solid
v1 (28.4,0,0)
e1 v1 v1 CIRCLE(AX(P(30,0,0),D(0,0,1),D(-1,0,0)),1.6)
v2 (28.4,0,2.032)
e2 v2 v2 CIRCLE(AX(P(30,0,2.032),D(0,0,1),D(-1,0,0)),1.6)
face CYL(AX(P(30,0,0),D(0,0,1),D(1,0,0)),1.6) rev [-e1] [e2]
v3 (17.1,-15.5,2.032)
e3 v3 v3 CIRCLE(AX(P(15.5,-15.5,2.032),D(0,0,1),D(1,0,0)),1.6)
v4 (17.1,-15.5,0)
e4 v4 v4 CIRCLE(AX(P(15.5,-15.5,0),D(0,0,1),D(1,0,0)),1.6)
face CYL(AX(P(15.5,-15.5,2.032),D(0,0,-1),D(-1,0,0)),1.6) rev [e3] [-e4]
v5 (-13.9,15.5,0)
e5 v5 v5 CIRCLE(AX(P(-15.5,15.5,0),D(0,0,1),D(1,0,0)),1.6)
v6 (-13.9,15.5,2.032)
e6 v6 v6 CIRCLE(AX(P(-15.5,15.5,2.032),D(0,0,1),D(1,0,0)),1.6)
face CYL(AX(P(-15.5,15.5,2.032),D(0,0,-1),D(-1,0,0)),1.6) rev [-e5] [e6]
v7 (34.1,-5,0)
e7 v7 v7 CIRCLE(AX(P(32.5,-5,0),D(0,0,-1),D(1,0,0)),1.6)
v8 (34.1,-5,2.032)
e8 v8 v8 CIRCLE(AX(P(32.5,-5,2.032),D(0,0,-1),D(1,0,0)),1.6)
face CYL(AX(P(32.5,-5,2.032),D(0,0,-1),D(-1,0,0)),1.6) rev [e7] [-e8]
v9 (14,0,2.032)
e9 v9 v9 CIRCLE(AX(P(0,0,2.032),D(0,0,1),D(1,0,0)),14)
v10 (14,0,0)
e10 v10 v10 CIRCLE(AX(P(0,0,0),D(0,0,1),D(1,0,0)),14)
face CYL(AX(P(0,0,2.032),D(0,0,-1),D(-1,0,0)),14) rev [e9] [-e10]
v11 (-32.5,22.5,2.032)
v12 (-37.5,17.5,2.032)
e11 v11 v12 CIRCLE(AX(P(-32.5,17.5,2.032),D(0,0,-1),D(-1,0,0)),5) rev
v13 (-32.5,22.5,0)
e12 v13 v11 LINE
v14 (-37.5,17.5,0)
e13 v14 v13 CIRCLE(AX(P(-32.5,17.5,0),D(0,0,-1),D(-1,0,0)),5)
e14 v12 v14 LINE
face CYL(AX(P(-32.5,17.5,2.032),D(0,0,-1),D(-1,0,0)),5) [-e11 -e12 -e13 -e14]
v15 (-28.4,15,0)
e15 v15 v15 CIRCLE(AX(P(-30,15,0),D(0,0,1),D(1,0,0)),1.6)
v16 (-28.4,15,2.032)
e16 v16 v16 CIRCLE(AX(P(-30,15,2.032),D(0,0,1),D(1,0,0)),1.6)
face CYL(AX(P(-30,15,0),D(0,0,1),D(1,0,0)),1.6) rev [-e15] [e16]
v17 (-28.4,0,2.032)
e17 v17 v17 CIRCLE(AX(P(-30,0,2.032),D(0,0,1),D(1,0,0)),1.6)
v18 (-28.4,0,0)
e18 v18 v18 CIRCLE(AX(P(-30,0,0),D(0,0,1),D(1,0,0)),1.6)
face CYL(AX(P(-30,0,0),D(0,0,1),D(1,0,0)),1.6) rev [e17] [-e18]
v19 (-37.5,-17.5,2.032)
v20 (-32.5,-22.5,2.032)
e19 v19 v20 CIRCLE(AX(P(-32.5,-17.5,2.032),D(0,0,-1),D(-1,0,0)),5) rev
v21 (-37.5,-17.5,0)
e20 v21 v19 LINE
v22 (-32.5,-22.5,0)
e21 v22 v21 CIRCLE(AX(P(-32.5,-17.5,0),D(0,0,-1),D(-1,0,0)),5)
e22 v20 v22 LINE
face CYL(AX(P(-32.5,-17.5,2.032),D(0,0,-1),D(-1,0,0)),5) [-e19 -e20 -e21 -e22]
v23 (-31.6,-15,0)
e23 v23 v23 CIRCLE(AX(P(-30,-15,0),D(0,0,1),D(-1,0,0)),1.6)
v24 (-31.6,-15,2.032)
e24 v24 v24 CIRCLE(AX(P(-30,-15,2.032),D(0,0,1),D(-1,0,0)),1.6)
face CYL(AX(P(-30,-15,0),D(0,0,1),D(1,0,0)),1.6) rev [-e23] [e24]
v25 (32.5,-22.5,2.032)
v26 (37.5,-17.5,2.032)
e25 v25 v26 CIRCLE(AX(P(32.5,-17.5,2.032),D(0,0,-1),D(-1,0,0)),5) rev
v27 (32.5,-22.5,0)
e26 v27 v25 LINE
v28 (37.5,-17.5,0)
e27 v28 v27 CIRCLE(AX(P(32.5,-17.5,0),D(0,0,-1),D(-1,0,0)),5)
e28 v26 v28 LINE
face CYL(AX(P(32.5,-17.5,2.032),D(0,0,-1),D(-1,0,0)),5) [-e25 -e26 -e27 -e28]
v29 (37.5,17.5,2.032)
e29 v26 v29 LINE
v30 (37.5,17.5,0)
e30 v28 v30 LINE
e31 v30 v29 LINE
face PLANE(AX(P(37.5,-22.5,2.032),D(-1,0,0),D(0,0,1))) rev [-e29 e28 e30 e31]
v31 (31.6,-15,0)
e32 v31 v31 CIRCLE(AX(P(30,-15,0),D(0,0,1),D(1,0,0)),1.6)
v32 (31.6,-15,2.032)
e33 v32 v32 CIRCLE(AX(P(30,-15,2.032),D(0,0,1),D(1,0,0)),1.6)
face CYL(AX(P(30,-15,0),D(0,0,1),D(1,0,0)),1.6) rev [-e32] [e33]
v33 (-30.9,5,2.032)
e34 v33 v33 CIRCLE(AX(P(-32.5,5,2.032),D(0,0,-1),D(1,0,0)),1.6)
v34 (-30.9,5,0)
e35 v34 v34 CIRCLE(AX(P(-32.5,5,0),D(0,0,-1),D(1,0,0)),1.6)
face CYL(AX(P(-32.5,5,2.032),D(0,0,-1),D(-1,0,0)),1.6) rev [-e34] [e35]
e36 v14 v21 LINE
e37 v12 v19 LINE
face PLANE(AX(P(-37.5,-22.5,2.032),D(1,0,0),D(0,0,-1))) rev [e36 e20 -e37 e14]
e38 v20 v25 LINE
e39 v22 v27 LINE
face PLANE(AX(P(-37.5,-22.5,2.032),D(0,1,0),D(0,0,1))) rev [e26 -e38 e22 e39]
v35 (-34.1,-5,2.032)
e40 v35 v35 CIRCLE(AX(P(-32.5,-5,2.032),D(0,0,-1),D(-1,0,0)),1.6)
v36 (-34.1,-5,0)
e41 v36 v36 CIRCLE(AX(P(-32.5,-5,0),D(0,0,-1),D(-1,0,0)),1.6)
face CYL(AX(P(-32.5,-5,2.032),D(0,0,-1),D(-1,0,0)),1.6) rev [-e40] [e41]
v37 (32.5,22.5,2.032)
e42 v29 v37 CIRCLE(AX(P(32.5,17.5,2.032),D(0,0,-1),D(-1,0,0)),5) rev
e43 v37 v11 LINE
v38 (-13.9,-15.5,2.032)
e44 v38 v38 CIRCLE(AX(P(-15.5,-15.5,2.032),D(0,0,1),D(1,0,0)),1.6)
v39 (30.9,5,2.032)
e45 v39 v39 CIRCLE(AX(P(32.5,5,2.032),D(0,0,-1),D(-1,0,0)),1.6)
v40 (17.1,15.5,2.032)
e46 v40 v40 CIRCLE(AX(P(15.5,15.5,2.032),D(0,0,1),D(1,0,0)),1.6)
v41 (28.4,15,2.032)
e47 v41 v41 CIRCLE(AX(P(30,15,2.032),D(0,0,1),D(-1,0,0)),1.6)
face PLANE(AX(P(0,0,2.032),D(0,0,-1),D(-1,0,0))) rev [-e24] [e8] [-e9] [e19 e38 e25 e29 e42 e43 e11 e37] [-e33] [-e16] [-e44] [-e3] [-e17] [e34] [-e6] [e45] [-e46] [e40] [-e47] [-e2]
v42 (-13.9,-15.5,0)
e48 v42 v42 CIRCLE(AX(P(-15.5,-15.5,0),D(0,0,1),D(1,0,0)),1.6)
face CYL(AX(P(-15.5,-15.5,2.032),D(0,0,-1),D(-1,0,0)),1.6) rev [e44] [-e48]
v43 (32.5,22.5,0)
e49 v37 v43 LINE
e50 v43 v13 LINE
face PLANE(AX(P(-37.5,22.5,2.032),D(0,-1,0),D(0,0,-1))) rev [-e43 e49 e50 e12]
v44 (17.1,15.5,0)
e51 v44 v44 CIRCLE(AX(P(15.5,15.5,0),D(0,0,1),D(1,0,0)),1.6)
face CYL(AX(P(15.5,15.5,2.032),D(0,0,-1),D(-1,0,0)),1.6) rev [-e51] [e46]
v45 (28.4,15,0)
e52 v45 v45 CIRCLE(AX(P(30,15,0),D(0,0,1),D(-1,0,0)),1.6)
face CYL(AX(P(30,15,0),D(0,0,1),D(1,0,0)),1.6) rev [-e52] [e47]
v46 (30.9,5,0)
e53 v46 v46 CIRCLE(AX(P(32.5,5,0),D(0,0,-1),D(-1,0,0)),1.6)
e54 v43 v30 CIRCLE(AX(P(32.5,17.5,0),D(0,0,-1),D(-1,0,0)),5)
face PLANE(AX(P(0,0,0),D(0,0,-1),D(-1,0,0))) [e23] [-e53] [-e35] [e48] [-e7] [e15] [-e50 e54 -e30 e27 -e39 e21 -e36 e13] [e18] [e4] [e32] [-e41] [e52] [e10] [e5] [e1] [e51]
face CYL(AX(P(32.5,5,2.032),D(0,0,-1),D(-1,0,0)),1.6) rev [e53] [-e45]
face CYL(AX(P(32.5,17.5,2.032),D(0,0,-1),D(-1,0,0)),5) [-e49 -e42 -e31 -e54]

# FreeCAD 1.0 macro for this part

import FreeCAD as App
import Part
import Sketcher
from FreeCAD import Vector


def edges_at(feature, points):
    """Names of the edges that pass closest to the given points."""
    edges = feature.Shape.Edges
    near = lambda p: min(range(len(edges)), key=lambda i: edges[i].distToShape(Part.Vertex(*p))[0])
    return sorted({f"Edge{near(p) + 1}" for p in points})

doc = App.newDocument("Part")
body = doc.addObject("PartDesign::Body", "Body")

sketch1 = body.newObject("Sketcher::SketchObject", "Sketch")
sketch1.AttachmentSupport = (doc.getObject("XY_Plane"), [""])
sketch1.MapMode = "FlatFace"
sketch1.addGeometry(Part.LineSegment(Vector(-37.5, 22.5, 0), Vector(-37.5, -22.5, 0)), False)
sketch1.addGeometry(Part.LineSegment(Vector(-37.5, -22.5, 0), Vector(37.5, -22.5, 0)), False)
sketch1.addGeometry(Part.LineSegment(Vector(37.5, -22.5, 0), Vector(37.5, 22.5, 0)), False)
sketch1.addGeometry(Part.LineSegment(Vector(37.5, 22.5, 0), Vector(-37.5, 22.5, 0)), False)
sketch1.addGeometry(Part.Circle(Vector(-15.5, -15.5, 0), Vector(0, 0, 1), 1.6), False)
sketch1.addGeometry(Part.Circle(Vector(15.5, -15.5, 0), Vector(0, 0, 1), 1.6), False)
sketch1.addGeometry(Part.Circle(Vector(-15.5, 15.5, 0), Vector(0, 0, 1), 1.6), False)
sketch1.addGeometry(Part.Circle(Vector(0, 0, 0), Vector(0, 0, 1), 14), False)
sketch1.addGeometry(Part.Circle(Vector(15.5, 15.5, 0), Vector(0, 0, 1), 1.6), False)
sketch1.addConstraint(Sketcher.Constraint("Coincident", 0, 2, 1, 1))
sketch1.addConstraint(Sketcher.Constraint("Coincident", 1, 2, 2, 1))
sketch1.addConstraint(Sketcher.Constraint("Coincident", 2, 2, 3, 1))
sketch1.addConstraint(Sketcher.Constraint("Coincident", 3, 2, 0, 1))
sketch1.addConstraint(Sketcher.Constraint("Vertical", 0))
sketch1.addConstraint(Sketcher.Constraint("Horizontal", 1))
sketch1.addConstraint(Sketcher.Constraint("Vertical", 2))
sketch1.addConstraint(Sketcher.Constraint("Horizontal", 3))
sketch1.addConstraint(Sketcher.Constraint("Coincident", 7, 3, -1, 1))
sketch1.addConstraint(Sketcher.Constraint("Equal", 4, 5))
sketch1.addConstraint(Sketcher.Constraint("Equal", 5, 6))
sketch1.addConstraint(Sketcher.Constraint("Equal", 6, 8))
sketch1.addConstraint(Sketcher.Constraint("Symmetric", 5, 3, 6, 3, -1, 1))
sketch1.addConstraint(Sketcher.Constraint("Symmetric", 4, 3, 8, 3, -1, 1))
sketch1.addConstraint(Sketcher.Constraint("Symmetric", 0, 2, 2, 2, -1, 1))
sketch1.addConstraint(Sketcher.Constraint("Symmetric", 4, 3, 5, 3, -2))
sketch1.addConstraint(Sketcher.Constraint("Diameter", 7, 28.0))
sketch1.addConstraint(Sketcher.Constraint("Diameter", 4, 3.2))
sketch1.addConstraint(Sketcher.Constraint("DistanceX", 1, 1, 1, 2, 75.0))
sketch1.addConstraint(Sketcher.Constraint("DistanceY", 0, 2, 0, 1, 45.0))
sketch1.addConstraint(Sketcher.Constraint("DistanceX", 4, 3, 5, 3, 31.0))
sketch1.addConstraint(Sketcher.Constraint("DistanceY", 4, 3, 6, 3, 31.0))
pad1 = body.newObject("PartDesign::Pad", "Pad")
pad1.Profile = sketch1
pad1.Length = 2.032
doc.recompute()

fillet = body.newObject("PartDesign::Fillet", "Fillet")
fillet.Base = (pad1, edges_at(pad1, [
    (37.5, -22.5, 1.016),
    (-37.5, -22.5, 1.016),
    (-37.5, 22.5, 1.016),
    (37.5, 22.5, 1.016),
]))
fillet.Radius = 5

sketch2 = body.newObject("Sketcher::SketchObject", "Sketch001")
sketch2.AttachmentSupport = (doc.getObject("XY_Plane"), [""])
sketch2.MapMode = "FlatFace"
sketch2.AttachmentOffset = App.Placement(Vector(0, 0, 2.032), App.Rotation())
sketch2.addGeometry(Part.Circle(Vector(-30, 0, 0), Vector(0, 0, 1), 1.6), False)
sketch2.addGeometry(Part.Circle(Vector(-30, 15, 0), Vector(0, 0, 1), 1.6), False)
sketch2.addGeometry(Part.Circle(Vector(-30, -15, 0), Vector(0, 0, 1), 1.6), False)
sketch2.addGeometry(Part.Circle(Vector(30, -15, 0), Vector(0, 0, 1), 1.6), False)
sketch2.addGeometry(Part.Circle(Vector(30, 15, 0), Vector(0, 0, 1), 1.6), False)
sketch2.addGeometry(Part.Circle(Vector(30, 0, 0), Vector(0, 0, 1), 1.6), False)
sketch2.addConstraint(Sketcher.Constraint("Equal", 0, 1))
sketch2.addConstraint(Sketcher.Constraint("Equal", 1, 2))
sketch2.addConstraint(Sketcher.Constraint("Equal", 2, 3))
sketch2.addConstraint(Sketcher.Constraint("Equal", 3, 4))
sketch2.addConstraint(Sketcher.Constraint("Equal", 4, 5))
sketch2.addConstraint(Sketcher.Constraint("Symmetric", 1, 3, 3, 3, -1, 1))
sketch2.addConstraint(Sketcher.Constraint("Symmetric", 2, 3, 4, 3, -1, 1))
sketch2.addConstraint(Sketcher.Constraint("Symmetric", 0, 3, 5, 3, -1, 1))
sketch2.addConstraint(Sketcher.Constraint("Symmetric", 2, 3, 3, 3, -2))
sketch2.addConstraint(Sketcher.Constraint("PointOnObject", 0, 3, -1))
sketch2.addConstraint(Sketcher.Constraint("Vertical", 0, 3, 1, 3))
sketch2.addConstraint(Sketcher.Constraint("Diameter", 0, 3.2))
sketch2.addConstraint(Sketcher.Constraint("DistanceX", 0, 3, -1, 1, 30.0))
sketch2.addConstraint(Sketcher.Constraint("DistanceY", -1, 1, 1, 3, 15.0))
pocket1 = body.newObject("PartDesign::Pocket", "Pocket")
pocket1.Profile = sketch2
pocket1.Type = "ThroughAll"

sketch3 = body.newObject("Sketcher::SketchObject", "Sketch002")
sketch3.AttachmentSupport = (doc.getObject("XY_Plane"), [""])
sketch3.MapMode = "FlatFace"
sketch3.addGeometry(Part.Circle(Vector(32.5, 5, 0), Vector(0, 0, 1), 1.6), False)
sketch3.addGeometry(Part.Circle(Vector(32.5, -5, 0), Vector(0, 0, 1), 1.6), False)
sketch3.addGeometry(Part.Circle(Vector(-32.5, -5, 0), Vector(0, 0, 1), 1.6), False)
sketch3.addGeometry(Part.Circle(Vector(-32.5, 5, 0), Vector(0, 0, 1), 1.6), False)
sketch3.addConstraint(Sketcher.Constraint("Equal", 0, 1))
sketch3.addConstraint(Sketcher.Constraint("Equal", 1, 2))
sketch3.addConstraint(Sketcher.Constraint("Equal", 2, 3))
sketch3.addConstraint(Sketcher.Constraint("Symmetric", 0, 3, 2, 3, -1, 1))
sketch3.addConstraint(Sketcher.Constraint("Symmetric", 1, 3, 3, 3, -1, 1))
sketch3.addConstraint(Sketcher.Constraint("Symmetric", 1, 3, 2, 3, -2))
sketch3.addConstraint(Sketcher.Constraint("Diameter", 0, 3.2))
sketch3.addConstraint(Sketcher.Constraint("DistanceY", -1, 1, 0, 3, 5.0))
sketch3.addConstraint(Sketcher.Constraint("DistanceX", 2, 3, 1, 3, 65.0))
pocket2 = body.newObject("PartDesign::Pocket", "Pocket001")
pocket2.Profile = sketch3
pocket2.Type = "ThroughAll"
pocket2.Reversed = True

doc.recompute()
